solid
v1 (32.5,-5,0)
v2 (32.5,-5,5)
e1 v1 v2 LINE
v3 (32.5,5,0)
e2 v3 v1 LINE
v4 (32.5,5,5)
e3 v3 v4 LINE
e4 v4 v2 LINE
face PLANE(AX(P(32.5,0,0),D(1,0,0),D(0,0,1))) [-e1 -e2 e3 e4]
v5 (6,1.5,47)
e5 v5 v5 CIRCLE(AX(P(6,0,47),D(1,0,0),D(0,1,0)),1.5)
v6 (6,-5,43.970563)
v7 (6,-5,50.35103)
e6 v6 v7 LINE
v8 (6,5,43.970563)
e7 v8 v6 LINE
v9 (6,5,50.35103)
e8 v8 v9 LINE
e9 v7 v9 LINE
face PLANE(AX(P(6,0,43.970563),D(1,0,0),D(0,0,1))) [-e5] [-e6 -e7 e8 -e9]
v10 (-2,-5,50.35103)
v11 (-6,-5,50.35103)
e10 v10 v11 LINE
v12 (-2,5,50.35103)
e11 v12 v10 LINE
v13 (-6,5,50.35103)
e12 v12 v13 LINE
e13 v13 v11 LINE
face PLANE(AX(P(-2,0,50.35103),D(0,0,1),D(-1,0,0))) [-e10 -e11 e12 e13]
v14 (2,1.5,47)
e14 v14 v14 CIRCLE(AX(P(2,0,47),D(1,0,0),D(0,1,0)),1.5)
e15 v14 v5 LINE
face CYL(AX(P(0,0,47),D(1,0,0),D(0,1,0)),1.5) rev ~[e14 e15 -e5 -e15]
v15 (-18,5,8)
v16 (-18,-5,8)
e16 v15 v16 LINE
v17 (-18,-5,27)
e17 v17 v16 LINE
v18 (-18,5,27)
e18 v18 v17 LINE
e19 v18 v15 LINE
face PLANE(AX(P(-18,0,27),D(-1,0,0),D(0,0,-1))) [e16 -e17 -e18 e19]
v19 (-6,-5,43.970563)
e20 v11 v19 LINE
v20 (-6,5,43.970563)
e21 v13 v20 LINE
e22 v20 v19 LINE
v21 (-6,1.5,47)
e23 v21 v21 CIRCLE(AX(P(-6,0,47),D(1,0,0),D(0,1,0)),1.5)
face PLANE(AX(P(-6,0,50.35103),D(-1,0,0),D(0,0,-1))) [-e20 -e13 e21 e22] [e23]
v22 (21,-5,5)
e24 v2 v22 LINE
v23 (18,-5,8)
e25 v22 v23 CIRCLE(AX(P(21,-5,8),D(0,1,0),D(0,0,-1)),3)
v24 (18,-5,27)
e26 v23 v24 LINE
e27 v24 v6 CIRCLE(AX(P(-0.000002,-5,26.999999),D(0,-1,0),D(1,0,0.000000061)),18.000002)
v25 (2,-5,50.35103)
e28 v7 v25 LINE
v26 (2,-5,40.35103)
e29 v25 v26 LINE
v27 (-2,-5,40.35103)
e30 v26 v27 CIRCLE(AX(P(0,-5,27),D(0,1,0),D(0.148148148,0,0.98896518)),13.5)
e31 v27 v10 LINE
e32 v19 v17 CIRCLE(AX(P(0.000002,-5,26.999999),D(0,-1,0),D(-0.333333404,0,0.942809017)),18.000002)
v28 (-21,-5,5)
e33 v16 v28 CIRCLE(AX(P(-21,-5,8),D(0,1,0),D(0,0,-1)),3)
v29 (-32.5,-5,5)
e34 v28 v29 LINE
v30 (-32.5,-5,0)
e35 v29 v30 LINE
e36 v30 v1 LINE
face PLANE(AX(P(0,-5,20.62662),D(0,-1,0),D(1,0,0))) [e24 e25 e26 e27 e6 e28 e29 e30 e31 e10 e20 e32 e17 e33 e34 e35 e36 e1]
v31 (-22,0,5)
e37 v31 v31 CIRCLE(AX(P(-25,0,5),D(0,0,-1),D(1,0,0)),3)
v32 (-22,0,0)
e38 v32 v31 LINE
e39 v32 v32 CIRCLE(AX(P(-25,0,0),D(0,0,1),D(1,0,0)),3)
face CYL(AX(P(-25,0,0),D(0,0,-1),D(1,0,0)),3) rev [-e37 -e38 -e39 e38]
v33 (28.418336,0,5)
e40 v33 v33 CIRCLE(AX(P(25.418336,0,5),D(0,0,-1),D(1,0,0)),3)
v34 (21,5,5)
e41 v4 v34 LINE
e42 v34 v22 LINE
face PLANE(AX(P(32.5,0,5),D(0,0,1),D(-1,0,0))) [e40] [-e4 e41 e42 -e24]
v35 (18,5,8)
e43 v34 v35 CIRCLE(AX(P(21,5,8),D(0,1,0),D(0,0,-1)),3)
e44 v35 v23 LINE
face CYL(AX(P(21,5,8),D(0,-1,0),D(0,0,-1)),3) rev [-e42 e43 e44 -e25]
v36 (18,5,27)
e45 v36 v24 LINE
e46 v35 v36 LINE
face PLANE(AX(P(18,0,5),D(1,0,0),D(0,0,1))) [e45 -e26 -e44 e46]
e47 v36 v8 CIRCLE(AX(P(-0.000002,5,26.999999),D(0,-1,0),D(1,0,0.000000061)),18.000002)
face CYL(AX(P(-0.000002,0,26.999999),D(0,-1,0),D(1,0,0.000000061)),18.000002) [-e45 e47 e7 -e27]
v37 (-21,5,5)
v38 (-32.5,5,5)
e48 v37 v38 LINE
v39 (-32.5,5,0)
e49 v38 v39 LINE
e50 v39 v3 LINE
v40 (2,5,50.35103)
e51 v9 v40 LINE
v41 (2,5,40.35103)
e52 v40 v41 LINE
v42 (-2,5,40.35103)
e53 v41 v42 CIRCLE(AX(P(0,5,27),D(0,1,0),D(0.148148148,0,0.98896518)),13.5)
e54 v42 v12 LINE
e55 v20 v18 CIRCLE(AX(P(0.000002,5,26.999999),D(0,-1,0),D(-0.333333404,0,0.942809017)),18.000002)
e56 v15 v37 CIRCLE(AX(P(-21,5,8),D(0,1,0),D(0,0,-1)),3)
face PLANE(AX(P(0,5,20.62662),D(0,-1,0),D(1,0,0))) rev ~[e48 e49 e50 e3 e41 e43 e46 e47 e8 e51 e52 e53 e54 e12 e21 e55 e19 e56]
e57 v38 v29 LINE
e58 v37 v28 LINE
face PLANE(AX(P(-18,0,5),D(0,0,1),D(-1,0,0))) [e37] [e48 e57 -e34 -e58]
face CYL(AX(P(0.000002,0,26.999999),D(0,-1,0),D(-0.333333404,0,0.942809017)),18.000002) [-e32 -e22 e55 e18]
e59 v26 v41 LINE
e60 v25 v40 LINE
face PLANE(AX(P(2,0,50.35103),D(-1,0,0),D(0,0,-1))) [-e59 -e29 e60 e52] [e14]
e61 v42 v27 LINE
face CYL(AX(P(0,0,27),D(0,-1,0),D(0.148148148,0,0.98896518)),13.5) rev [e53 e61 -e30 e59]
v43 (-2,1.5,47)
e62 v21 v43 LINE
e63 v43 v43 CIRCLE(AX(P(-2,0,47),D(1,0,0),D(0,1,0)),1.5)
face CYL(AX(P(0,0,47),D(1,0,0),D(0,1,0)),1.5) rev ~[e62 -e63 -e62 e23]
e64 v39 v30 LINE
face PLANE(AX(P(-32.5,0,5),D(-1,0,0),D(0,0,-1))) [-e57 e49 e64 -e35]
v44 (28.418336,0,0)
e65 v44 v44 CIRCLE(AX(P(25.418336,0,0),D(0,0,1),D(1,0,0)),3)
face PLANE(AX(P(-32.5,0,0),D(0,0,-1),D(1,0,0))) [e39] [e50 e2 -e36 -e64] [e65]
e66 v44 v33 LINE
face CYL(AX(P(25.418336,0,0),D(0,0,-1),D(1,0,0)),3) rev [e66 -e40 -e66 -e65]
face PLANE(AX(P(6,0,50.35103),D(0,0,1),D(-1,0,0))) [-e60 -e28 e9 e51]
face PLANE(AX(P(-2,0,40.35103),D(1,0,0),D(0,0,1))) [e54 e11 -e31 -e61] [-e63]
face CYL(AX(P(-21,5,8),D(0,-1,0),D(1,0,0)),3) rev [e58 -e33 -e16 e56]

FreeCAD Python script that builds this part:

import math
import FreeCAD as App
import Part
import Sketcher
Q = App.Units.Quantity


def edges_at(feature, points):
    """Names of the edges that pass closest to the given points."""
    edges = feature.Shape.Edges
    near = lambda p: min(range(len(edges)), key=lambda i: edges[i].distToShape(Part.Vertex(*p))[0])
    return sorted({f"Edge{near(p) + 1}" for p in points})

doc = App.newDocument("Part")
body = doc.addObject("PartDesign::Body", "Body")

sketch1 = body.newObject("Sketcher::SketchObject", "Sketch")
sketch1.AttachmentSupport = (doc.getObject("XZ_Plane"), [""])
sketch1.MapMode = "FlatFace"
sketch1.addGeometry([
    Part.ArcOfCircle(Part.Circle(App.Vector(0, 27, 0), App.Vector(0, 0, 1), 13.5), math.radians(99), math.radians(441)),
    Part.LineSegment(App.Vector(-2, 40.4, 0), App.Vector(-2, 50.4, 0)),
    Part.LineSegment(App.Vector(-2, 50.4, 0), App.Vector(-6, 50.4, 0)),
    Part.LineSegment(App.Vector(-6, 50.4, 0), App.Vector(-6, 44, 0)),
    Part.ArcOfCircle(Part.Circle(App.Vector(0, 27, 0), App.Vector(0, 0, 1), 18), math.radians(109), math.radians(180)),
    Part.LineSegment(App.Vector(-18, 27, 0), App.Vector(-18, 5, 0)),
    Part.LineSegment(App.Vector(-18, 5, 0), App.Vector(-32.5, 5, 0)),
    Part.LineSegment(App.Vector(-32.5, 5, 0), App.Vector(-32.5, 0, 0)),
    Part.LineSegment(App.Vector(-32.5, 0, 0), App.Vector(32.5, 0, 0)),
    Part.LineSegment(App.Vector(32.5, 0, 0), App.Vector(32.5, 5, 0)),
    Part.LineSegment(App.Vector(32.5, 5, 0), App.Vector(18, 5, 0)),
    Part.LineSegment(App.Vector(18, 5, 0), App.Vector(18, 27, 0)),
    Part.ArcOfCircle(Part.Circle(App.Vector(0, 27, 0), App.Vector(0, 0, 1), 18), math.radians(0), math.radians(71)),
    Part.LineSegment(App.Vector(6, 44, 0), App.Vector(6, 50.4, 0)),
    Part.LineSegment(App.Vector(6, 50.4, 0), App.Vector(2, 50.4, 0)),
    Part.LineSegment(App.Vector(2, 50.4, 0), App.Vector(2, 40.4, 0)),
], False)
sketch1.addConstraint([
    Sketcher.Constraint("Coincident", 0, 1, 1, 1),
    Sketcher.Constraint("Coincident", 1, 2, 2, 1),
    Sketcher.Constraint("Coincident", 2, 2, 3, 1),
    Sketcher.Constraint("Coincident", 3, 2, 4, 1),
    Sketcher.Constraint("Tangent", 4, 2, 5, 1),
    Sketcher.Constraint("Coincident", 5, 2, 6, 1),
    Sketcher.Constraint("Coincident", 6, 2, 7, 1),
    Sketcher.Constraint("Coincident", 7, 2, 8, 1),
    Sketcher.Constraint("Coincident", 8, 2, 9, 1),
    Sketcher.Constraint("Coincident", 9, 2, 10, 1),
    Sketcher.Constraint("Coincident", 10, 2, 11, 1),
    Sketcher.Constraint("Tangent", 11, 2, 12, 1),
    Sketcher.Constraint("Coincident", 12, 2, 13, 1),
    Sketcher.Constraint("Coincident", 13, 2, 14, 1),
    Sketcher.Constraint("Coincident", 14, 2, 15, 1),
    Sketcher.Constraint("Coincident", 15, 2, 0, 2),
    Sketcher.Constraint("Vertical", 1),
    Sketcher.Constraint("Horizontal", 2),
    Sketcher.Constraint("Vertical", 3),
    Sketcher.Constraint("Vertical", 5),
    Sketcher.Constraint("Horizontal", 6),
    Sketcher.Constraint("Vertical", 7),
    Sketcher.Constraint("Horizontal", 8),
    Sketcher.Constraint("Vertical", 9),
    Sketcher.Constraint("Horizontal", 10),
    Sketcher.Constraint("Vertical", 11),
    Sketcher.Constraint("Vertical", 13),
    Sketcher.Constraint("Horizontal", 14),
    Sketcher.Constraint("Vertical", 15),
    Sketcher.Constraint("Coincident", 4, 3, 0, 3),
    Sketcher.Constraint("Coincident", 12, 3, 0, 3),
    Sketcher.Constraint("Equal", 4, 12),
    Sketcher.Constraint("Symmetric", 7, 2, 8, 2, -1, 1),
    Sketcher.Constraint("Symmetric", 5, 2, 10, 2, -2),
    Sketcher.Constraint("Symmetric", 2, 2, 13, 2, -2),
    Sketcher.Constraint("Horizontal", 0, 1, 15, 2),
    Sketcher.Constraint("Radius", 4, Q("18.000002 mm")),
    Sketcher.Constraint("Radius", 0, Q("13.5 mm")),
    Sketcher.Constraint("DistanceX", 2, 2, 2, 1, Q("4 mm")),
    Sketcher.Constraint("DistanceX", 8, 1, 8, 2, Q("65 mm")),
    Sketcher.Constraint("DistanceY", 1, 1, 1, 2, Q("10 mm")),
    Sketcher.Constraint("DistanceY", 5, 2, 5, 1, Q("22 mm")),
    Sketcher.Constraint("DistanceY", 7, 2, 7, 1, Q("5 mm")),
    Sketcher.Constraint("DistanceX", 0, 1, -1, 1, Q("2 mm")),
])
pad1 = body.newObject("PartDesign::Pad", "Pad")
pad1.Profile = sketch1
pad1.Length = 10
pad1.Midplane = True
body2 = doc.addObject("PartDesign::Body", "Body001")

sketch2 = body2.newObject("Sketcher::SketchObject", "Sketch001")
sketch2.AttachmentSupport = (doc.getObject("YZ_Plane001"), [""])
sketch2.MapMode = "FlatFace"
sketch2.addGeometry(Part.Circle(App.Vector(0, 47, 0), App.Vector(0, 0, 1), 1.5), False)
sketch2.addConstraint([
    Sketcher.Constraint("PointOnObject", 0, 3, -2),
    Sketcher.Constraint("Diameter", 0, Q("3 mm")),
    Sketcher.Constraint("DistanceY", -1, 1, 0, 3, Q("47 mm")),
])
pad2 = body2.newObject("PartDesign::Pad", "Pad001")
pad2.Profile = sketch2
pad2.Length = 25
pad2.Midplane = True
doc.recompute()

boolean = body.newObject("PartDesign::Boolean", "Boolean")
boolean.Type = "Cut"
boolean.addObjects([body2])
doc.recompute()

fillet = body.newObject("PartDesign::Fillet", "Fillet")
fillet.Base = (boolean, edges_at(boolean, [(18, 0, 5), (-18, 0, 5)]))
fillet.Radius = 3
body3 = doc.addObject("PartDesign::Body", "Body002")
body3.AllowCompound = True

sketch3 = body3.newObject("Sketcher::SketchObject", "Sketch002")
sketch3.AttachmentSupport = (doc.getObject("XY_Plane002"), [""])
sketch3.MapMode = "FlatFace"
sketch3.addGeometry([
    Part.Circle(App.Vector(-25, 0, 0), App.Vector(0, 0, 1), 3),
    Part.Circle(App.Vector(25.4, 0, 0), App.Vector(0, 0, 1), 3),
], False)
sketch3.addConstraint([
    Sketcher.Constraint("Equal", 0, 1),
    Sketcher.Constraint("PointOnObject", 0, 3, -1),
    Sketcher.Constraint("PointOnObject", 1, 3, -1),
    Sketcher.Constraint("Diameter", 0, Q("6 mm")),
    Sketcher.Constraint("DistanceX", 0, 3, -1, 1, Q("25 mm")),
    Sketcher.Constraint("DistanceX", -1, 1, 1, 3, Q("25.418336 mm")),
])
pad3 = body3.newObject("PartDesign::Pad", "Pad002")
pad3.Profile = sketch3
pad3.Length = 25
doc.recompute()

boolean2 = body.newObject("PartDesign::Boolean", "Boolean001")
boolean2.Type = "Cut"
boolean2.addObjects([body3])

doc.recompute()
